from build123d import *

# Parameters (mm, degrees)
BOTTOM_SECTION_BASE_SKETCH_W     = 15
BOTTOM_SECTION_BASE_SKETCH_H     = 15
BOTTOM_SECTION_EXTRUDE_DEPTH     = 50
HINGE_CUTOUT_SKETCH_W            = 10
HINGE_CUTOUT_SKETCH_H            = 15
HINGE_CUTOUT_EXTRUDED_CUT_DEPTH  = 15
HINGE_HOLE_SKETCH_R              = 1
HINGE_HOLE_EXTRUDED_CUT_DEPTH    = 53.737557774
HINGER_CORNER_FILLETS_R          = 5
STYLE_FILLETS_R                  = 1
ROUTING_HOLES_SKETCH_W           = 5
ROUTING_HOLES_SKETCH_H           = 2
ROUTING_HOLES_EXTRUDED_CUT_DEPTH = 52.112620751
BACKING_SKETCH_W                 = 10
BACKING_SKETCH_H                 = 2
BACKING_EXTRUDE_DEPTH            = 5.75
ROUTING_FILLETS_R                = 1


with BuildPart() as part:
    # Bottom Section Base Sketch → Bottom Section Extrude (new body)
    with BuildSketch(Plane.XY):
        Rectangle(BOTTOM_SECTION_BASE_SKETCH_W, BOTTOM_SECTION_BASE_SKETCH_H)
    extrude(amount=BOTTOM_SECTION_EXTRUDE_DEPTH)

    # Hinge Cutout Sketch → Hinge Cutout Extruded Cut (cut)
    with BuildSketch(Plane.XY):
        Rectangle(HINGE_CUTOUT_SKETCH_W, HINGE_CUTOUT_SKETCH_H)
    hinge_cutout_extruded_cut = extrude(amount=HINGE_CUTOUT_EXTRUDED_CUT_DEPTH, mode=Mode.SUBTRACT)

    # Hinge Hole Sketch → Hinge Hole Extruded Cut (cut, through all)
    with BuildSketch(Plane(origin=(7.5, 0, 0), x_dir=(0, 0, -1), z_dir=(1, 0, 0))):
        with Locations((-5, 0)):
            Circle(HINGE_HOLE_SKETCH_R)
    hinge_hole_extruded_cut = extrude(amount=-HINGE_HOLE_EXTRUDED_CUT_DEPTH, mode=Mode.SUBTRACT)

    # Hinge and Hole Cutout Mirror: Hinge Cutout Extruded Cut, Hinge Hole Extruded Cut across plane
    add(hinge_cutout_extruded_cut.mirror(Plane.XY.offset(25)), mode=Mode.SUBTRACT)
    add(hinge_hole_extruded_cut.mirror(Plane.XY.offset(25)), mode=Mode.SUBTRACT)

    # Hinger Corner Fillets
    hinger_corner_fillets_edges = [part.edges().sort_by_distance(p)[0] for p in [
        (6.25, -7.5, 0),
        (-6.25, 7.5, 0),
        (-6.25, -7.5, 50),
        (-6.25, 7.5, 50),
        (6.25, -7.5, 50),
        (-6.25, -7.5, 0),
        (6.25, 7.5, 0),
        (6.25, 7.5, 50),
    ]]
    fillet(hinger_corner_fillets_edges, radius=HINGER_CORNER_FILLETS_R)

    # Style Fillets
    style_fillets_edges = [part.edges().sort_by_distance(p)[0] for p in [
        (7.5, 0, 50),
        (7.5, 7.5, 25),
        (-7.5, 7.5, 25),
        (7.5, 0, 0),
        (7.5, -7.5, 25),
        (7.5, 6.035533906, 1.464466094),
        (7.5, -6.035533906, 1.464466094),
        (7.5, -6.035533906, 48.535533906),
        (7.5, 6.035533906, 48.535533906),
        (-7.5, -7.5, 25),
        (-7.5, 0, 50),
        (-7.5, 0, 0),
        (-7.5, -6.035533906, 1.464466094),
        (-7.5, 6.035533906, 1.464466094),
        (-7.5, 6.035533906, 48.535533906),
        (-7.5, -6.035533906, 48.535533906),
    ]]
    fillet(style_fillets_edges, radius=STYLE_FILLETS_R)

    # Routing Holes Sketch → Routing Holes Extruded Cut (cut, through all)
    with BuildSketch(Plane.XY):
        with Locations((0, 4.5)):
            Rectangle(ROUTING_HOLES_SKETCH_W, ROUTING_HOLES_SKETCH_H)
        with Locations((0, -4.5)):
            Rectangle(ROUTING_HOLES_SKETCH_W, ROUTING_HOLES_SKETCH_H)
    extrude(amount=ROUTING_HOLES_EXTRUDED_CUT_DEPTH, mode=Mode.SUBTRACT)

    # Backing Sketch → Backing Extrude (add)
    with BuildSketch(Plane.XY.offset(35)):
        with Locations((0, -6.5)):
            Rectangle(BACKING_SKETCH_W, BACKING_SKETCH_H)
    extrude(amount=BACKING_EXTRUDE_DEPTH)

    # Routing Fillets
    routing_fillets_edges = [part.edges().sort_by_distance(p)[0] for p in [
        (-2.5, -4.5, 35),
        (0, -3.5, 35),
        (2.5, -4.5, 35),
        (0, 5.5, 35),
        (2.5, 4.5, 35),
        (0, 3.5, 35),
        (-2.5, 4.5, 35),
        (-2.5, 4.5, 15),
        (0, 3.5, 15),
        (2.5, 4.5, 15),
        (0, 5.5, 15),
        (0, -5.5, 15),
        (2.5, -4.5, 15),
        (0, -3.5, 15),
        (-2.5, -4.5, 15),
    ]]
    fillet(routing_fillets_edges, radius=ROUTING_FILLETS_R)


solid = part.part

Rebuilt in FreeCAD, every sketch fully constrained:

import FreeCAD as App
import Part
import Sketcher
Q = App.Units.Quantity


def edges_at(feature, points):
    """Names of the edges that pass closest to the given points."""
    edges = feature.Shape.Edges
    near = lambda p: min(range(len(edges)), key=lambda i: edges[i].distToShape(Part.Vertex(*p))[0])
    return sorted({f"Edge{near(p) + 1}" for p in points})


def add_polygon(sketch, points):
    """Adds a closed chain of lines whose ends are joined by coincident constraints."""
    first, n = sketch.GeometryCount, len(points)
    for a, b in zip(points, points[1:] + points[:1]):
        sketch.addGeometry(Part.LineSegment(App.Vector(*a, 0), App.Vector(*b, 0)), False)
    for i in range(n):
        sketch.addConstraint(Sketcher.Constraint("Coincident", first + i, 2, first + (i + 1) % n, 1))

doc = App.newDocument("Part")
body = doc.addObject("PartDesign::Body", "Body")

sketch1 = doc.addObject("Sketcher::SketchObject", "Sketch")
body.addObject(sketch1)
sketch1.AttachmentSupport = (doc.XY_Plane, [""])
sketch1.MapMode = "FlatFace"
add_polygon(sketch1, [(-8, 8), (-8, -8), (8, -8), (8, 8)])
sketch1.addConstraint([
    Sketcher.Constraint("Vertical", 0),
    Sketcher.Constraint("Horizontal", 1),
    Sketcher.Constraint("Vertical", 2),
    Sketcher.Constraint("Horizontal", 3),
    Sketcher.Constraint("Symmetric", 0, 2, 2, 2, -1, 1),
    Sketcher.Constraint("Equal", 3, 0),
    Sketcher.Constraint("DistanceX", 1, 1, 1, 2, Q("15 mm")),
])
pad1 = doc.addObject("PartDesign::Pad", "Pad")
body.addObject(pad1)
pad1.Profile = sketch1
pad1.Length = 50

sketch2 = doc.addObject("Sketcher::SketchObject", "Sketch001")
body.addObject(sketch2)
sketch2.AttachmentSupport = (doc.XY_Plane, [""])
sketch2.MapMode = "FlatFace"
add_polygon(sketch2, [(-5, 8), (-5, -8), (5, -8), (5, 8)])
sketch2.addConstraint([
    Sketcher.Constraint("Vertical", 0),
    Sketcher.Constraint("Horizontal", 1),
    Sketcher.Constraint("Vertical", 2),
    Sketcher.Constraint("Horizontal", 3),
    Sketcher.Constraint("Symmetric", 0, 2, 2, 2, -1, 1),
    Sketcher.Constraint("DistanceX", 1, 1, 1, 2, Q("10 mm")),
    Sketcher.Constraint("DistanceY", 0, 2, 0, 1, Q("15 mm")),
])
pocket1 = doc.addObject("PartDesign::Pocket", "Pocket")
body.addObject(pocket1)
pocket1.Profile = sketch2
pocket1.Length = 15
pocket1.Reversed = True

sketch3 = doc.addObject("Sketcher::SketchObject", "Sketch002")
body.addObject(sketch3)
sketch3.AttachmentSupport = (doc.YZ_Plane, [""])
sketch3.MapMode = "FlatFace"
sketch3.AttachmentOffset = App.Placement(App.Vector(0, 0, 7.5), App.Rotation())
sketch3.addGeometry(Part.Circle(App.Vector(0, 5, 0), App.Vector(0, 0, 1), 1), False)
sketch3.addConstraint([
    Sketcher.Constraint("PointOnObject", 0, 3, -2),
    Sketcher.Constraint("Diameter", 0, Q("2 mm")),
    Sketcher.Constraint("DistanceY", -1, 1, 0, 3, Q("5 mm")),
])
pocket2 = doc.addObject("PartDesign::Pocket", "Pocket001")
body.addObject(pocket2)
pocket2.Profile = sketch3
pocket2.Type = "ThroughAll"
doc.recompute()

datumplane = doc.addObject("PartDesign::Plane", "DatumPlane")
body.addObject(datumplane)
datumplane.AttachmentSupport = (doc.XY_Plane, [""])
datumplane.MapMode = "FlatFace"
datumplane.AttachmentOffset = App.Placement(App.Vector(0, 0, 25), App.Rotation())
mirrored = doc.addObject("PartDesign::Mirrored", "Mirrored")
body.addObject(mirrored)
mirrored.Originals = [pocket1, pocket2]
mirrored.MirrorPlane = (datumplane, [""])
body.Tip = mirrored
doc.recompute()

fillet = doc.addObject("PartDesign::Fillet", "Fillet")
body.addObject(fillet)
fillet.Base = (mirrored, edges_at(mirrored, [
    (6.25, -7.5, 0),
    (-6.25, 7.5, 0),
    (-6.25, -7.5, 50),
    (-6.25, 7.5, 50),
    (6.25, -7.5, 50),
    (-6.25, -7.5, 0),
    (6.25, 7.5, 0),
    (6.25, 7.5, 50),
]))
fillet.Radius = 5
doc.recompute()

fillet2 = doc.addObject("PartDesign::Fillet", "Fillet001")
body.addObject(fillet2)
fillet2.Base = (fillet, edges_at(fillet, [
    (7.5, 0, 50),
    (7.5, 7.5, 25),
    (-7.5, 7.5, 25),
    (7.5, 0, 0),
    (7.5, -7.5, 25),
    (7.5, 6.036, 1.464),
    (7.5, -6.036, 1.464),
    (7.5, -6.036, 48.536),
    (7.5, 6.036, 48.536),
    (-7.5, -7.5, 25),
    (-7.5, 0, 50),
    (-7.5, 0, 0),
    (-7.5, -6.036, 1.464),
    (-7.5, 6.036, 1.464),
    (-7.5, 6.036, 48.536),
    (-7.5, -6.036, 48.536),
]))
fillet2.Radius = 1

sketch4 = doc.addObject("Sketcher::SketchObject", "Sketch003")
body.addObject(sketch4)
sketch4.AttachmentSupport = (doc.XY_Plane, [""])
sketch4.MapMode = "FlatFace"
add_polygon(sketch4, [(-2.5, 5.5), (-2.5, 3.5), (2.5, 3.5), (2.5, 5.5)])
add_polygon(sketch4, [(-2.5, -3.5), (-2.5, -5.5), (2.5, -5.5), (2.5, -3.5)])
sketch4.addConstraint([
    Sketcher.Constraint("Vertical", 0),
    Sketcher.Constraint("Horizontal", 1),
    Sketcher.Constraint("Vertical", 2),
    Sketcher.Constraint("Horizontal", 3),
    Sketcher.Constraint("Vertical", 4),
    Sketcher.Constraint("Horizontal", 5),
    Sketcher.Constraint("Vertical", 6),
    Sketcher.Constraint("Horizontal", 7),
    Sketcher.Constraint("Symmetric", 2, 2, 4, 2, -1, 1),
    Sketcher.Constraint("Symmetric", 0, 2, 6, 2, -1, 1),
    Sketcher.Constraint("Vertical", 3, 2, 4, 2),
    Sketcher.Constraint("DistanceX", 1, 1, 1, 2, Q("5 mm")),
    Sketcher.Constraint("DistanceY", 0, 2, 0, 1, Q("2 mm")),
    Sketcher.Constraint("DistanceY", 4, 2, 0, 2, Q("9 mm")),
])
pocket3 = doc.addObject("PartDesign::Pocket", "Pocket002")
body.addObject(pocket3)
pocket3.Profile = sketch4
pocket3.Type = "ThroughAll"
pocket3.Reversed = True

sketch5 = doc.addObject("Sketcher::SketchObject", "Sketch004")
body.addObject(sketch5)
sketch5.AttachmentSupport = (doc.XY_Plane, [""])
sketch5.MapMode = "FlatFace"
sketch5.AttachmentOffset = App.Placement(App.Vector(0, 0, 35), App.Rotation())
add_polygon(sketch5, [(-5, -5.5), (-5, -7.5), (5, -7.5), (5, -5.5)])
sketch5.addConstraint([
    Sketcher.Constraint("Vertical", 0),
    Sketcher.Constraint("Horizontal", 1),
    Sketcher.Constraint("Vertical", 2),
    Sketcher.Constraint("Horizontal", 3),
    Sketcher.Constraint("DistanceX", 1, 1, 1, 2, Q("10 mm")),
    Sketcher.Constraint("DistanceY", 0, 2, 0, 1, Q("2 mm")),
    Sketcher.Constraint("DistanceX", 0, 2, -1, 1, Q("5 mm")),
    Sketcher.Constraint("DistanceY", 0, 2, -1, 1, Q("7.5 mm")),
])
pad2 = doc.addObject("PartDesign::Pad", "Pad001")
body.addObject(pad2)
pad2.Profile = sketch5
pad2.Length = 5.75
doc.recompute()

fillet3 = doc.addObject("PartDesign::Fillet", "Fillet002")
body.addObject(fillet3)
fillet3.Base = (pad2, edges_at(pad2, [
    (-2.5, -4.5, 35),
    (0, -3.5, 35),
    (2.5, -4.5, 35),
    (0, 5.5, 35),
    (2.5, 4.5, 35),
    (0, 3.5, 35),
    (-2.5, 4.5, 35),
    (-2.5, 4.5, 15),
    (0, 3.5, 15),
    (2.5, 4.5, 15),
    (0, 5.5, 15),
    (0, -5.5, 15),
    (2.5, -4.5, 15),
    (0, -3.5, 15),
    (-2.5, -4.5, 15),
]))
fillet3.Radius = 1

doc.recompute()
